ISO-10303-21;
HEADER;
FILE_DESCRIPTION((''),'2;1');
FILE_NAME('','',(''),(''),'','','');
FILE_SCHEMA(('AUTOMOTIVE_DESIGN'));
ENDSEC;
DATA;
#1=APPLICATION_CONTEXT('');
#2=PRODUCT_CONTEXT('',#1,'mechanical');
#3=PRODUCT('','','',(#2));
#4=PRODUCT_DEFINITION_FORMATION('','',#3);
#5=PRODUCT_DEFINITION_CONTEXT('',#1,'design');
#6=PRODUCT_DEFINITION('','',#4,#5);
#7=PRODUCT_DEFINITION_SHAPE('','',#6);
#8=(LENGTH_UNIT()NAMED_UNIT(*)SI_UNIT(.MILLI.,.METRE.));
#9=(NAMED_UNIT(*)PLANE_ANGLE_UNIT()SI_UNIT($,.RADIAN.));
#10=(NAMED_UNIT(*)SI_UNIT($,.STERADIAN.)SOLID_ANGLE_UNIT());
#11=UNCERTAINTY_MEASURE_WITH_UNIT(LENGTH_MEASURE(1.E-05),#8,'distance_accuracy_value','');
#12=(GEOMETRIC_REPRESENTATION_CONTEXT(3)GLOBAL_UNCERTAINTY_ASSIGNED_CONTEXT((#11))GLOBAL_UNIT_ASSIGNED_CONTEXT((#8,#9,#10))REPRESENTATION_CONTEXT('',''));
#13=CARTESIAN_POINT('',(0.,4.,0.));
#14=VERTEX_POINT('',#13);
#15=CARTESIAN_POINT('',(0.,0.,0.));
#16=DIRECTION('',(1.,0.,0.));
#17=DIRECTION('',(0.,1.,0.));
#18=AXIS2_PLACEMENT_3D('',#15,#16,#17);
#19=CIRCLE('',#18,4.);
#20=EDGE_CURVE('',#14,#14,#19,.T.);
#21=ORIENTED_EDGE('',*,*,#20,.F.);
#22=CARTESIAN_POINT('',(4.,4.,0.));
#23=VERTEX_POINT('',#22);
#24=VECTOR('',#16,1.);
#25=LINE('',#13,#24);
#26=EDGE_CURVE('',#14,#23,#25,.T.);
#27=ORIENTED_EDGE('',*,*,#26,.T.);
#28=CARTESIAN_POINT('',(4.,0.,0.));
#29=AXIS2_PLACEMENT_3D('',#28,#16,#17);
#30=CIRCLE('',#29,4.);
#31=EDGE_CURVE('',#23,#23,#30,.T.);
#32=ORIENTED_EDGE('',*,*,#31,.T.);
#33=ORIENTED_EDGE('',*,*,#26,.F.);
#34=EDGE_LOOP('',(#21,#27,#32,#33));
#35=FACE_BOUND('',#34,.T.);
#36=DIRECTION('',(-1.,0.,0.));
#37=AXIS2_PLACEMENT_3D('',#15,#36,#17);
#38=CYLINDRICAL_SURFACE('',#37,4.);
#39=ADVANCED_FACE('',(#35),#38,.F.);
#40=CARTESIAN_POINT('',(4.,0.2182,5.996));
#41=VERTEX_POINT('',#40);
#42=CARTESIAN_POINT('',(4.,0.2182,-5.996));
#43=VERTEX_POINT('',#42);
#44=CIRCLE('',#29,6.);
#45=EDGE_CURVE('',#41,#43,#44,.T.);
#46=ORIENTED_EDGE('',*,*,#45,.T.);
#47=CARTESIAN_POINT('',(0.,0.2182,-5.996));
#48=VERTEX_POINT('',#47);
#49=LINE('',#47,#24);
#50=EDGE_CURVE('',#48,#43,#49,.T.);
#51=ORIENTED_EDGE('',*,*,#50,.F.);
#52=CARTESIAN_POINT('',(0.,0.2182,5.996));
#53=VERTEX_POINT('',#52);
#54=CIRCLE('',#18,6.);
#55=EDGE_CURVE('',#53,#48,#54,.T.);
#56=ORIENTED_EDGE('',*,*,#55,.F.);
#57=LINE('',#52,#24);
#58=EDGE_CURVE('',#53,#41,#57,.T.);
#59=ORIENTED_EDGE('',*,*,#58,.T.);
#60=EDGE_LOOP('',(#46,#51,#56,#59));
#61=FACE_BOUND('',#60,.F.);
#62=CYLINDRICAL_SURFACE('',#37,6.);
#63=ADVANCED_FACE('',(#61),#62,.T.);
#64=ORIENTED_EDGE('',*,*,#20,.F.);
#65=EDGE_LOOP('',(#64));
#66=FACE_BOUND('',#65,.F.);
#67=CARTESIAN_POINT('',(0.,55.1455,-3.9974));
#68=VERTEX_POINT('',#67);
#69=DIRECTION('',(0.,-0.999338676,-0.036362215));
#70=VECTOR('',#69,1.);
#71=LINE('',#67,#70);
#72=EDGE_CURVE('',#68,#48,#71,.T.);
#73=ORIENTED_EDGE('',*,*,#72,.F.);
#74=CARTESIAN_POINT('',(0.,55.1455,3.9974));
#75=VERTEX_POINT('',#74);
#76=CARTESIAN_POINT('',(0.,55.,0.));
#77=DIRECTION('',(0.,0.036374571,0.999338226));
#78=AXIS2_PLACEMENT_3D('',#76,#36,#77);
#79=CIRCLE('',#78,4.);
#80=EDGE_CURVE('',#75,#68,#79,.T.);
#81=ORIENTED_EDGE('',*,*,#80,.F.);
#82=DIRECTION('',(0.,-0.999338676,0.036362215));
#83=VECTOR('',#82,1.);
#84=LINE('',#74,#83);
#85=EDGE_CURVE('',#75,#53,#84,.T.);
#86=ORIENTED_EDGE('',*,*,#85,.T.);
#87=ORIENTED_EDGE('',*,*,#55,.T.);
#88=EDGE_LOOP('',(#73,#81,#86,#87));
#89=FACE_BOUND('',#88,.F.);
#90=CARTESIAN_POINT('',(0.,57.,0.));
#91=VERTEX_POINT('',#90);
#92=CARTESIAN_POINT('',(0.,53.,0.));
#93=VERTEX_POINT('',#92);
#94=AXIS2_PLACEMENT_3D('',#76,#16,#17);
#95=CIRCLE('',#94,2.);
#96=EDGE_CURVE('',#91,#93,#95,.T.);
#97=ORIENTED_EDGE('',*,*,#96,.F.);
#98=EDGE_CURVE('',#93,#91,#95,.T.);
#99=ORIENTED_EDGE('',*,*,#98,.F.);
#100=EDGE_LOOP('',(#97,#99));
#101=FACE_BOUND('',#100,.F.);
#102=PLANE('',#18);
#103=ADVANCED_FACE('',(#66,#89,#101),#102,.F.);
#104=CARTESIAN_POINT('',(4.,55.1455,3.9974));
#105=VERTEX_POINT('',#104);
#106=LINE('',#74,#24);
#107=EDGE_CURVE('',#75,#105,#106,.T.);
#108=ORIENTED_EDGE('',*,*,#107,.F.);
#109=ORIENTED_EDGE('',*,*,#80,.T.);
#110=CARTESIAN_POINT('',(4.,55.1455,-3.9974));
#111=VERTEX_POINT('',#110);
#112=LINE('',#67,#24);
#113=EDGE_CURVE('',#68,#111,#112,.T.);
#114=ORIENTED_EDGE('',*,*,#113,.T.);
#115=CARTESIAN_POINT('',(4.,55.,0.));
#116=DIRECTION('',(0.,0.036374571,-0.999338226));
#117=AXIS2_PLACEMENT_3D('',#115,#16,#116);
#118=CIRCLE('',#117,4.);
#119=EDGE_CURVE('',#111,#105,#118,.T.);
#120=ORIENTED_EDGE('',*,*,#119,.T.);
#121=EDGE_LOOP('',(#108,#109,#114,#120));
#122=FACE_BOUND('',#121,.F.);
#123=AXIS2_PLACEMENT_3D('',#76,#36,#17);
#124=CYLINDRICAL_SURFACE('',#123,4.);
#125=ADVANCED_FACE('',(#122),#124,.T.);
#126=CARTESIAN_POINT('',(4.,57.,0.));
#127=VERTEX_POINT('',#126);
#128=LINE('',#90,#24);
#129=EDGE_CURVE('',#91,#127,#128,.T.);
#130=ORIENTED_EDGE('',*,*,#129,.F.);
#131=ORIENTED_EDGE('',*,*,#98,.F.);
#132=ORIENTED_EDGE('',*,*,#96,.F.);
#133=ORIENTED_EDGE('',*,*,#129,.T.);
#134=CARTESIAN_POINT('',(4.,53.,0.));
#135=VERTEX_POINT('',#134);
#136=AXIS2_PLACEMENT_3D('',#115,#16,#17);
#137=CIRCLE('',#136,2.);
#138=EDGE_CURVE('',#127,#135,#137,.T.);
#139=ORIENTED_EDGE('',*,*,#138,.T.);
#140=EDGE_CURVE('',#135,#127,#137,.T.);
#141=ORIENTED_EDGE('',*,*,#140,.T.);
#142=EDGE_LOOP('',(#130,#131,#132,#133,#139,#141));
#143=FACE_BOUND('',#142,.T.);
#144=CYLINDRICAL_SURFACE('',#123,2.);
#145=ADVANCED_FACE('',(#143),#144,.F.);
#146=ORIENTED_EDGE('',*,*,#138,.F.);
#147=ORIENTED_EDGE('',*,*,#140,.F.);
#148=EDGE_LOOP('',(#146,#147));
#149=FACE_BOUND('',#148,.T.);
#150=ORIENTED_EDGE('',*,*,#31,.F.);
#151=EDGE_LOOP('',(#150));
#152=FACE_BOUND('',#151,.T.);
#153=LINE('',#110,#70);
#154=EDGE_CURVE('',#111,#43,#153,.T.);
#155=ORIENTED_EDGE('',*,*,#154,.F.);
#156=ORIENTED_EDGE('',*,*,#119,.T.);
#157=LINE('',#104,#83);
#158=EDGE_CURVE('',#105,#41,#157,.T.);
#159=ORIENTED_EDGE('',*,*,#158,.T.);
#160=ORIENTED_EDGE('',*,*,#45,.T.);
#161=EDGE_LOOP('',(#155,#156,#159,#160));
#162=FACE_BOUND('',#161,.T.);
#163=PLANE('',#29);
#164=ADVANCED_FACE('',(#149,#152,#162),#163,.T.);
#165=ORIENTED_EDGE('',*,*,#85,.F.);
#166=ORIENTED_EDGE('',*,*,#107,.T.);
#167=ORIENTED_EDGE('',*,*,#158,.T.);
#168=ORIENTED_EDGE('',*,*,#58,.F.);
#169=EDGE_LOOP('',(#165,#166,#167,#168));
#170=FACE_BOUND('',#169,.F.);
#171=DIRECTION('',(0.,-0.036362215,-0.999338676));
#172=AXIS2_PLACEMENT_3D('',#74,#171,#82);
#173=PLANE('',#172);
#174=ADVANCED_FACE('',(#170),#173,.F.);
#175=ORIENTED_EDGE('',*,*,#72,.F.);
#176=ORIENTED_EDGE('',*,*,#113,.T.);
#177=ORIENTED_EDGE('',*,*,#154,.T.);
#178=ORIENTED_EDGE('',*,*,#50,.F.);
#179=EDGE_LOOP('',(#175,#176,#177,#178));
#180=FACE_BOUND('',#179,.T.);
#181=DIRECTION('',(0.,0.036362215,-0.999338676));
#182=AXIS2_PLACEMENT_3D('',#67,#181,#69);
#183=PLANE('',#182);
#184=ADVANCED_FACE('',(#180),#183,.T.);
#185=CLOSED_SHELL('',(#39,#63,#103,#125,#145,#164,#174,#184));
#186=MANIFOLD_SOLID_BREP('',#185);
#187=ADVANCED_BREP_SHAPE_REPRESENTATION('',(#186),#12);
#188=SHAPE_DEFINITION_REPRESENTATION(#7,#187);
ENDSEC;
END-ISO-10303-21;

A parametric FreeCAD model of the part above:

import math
import FreeCAD as App
import Part
import Sketcher
from FreeCAD import Vector
Q = App.Units.Quantity

doc = App.newDocument("Part")
body = doc.addObject("PartDesign::Body", "Body")

# Sketch on YZ plane
sketch1 = body.newObject("Sketcher::SketchObject", "Sketch")
sketch1.AttachmentSupport = (doc.getObject("YZ_Plane"), [""])
sketch1.MapMode = "FlatFace"
sketch1.addGeometry(Part.ArcOfCircle(Part.Circle(Vector(0, 0, 0), Vector(0, 0, 1), 6), math.radians(88), math.radians(272)), False)
sketch1.addGeometry(Part.LineSegment(Vector(0.2, -6, 0), Vector(55.1, -4, 0)), False)
sketch1.addGeometry(Part.ArcOfCircle(Part.Circle(Vector(55, 0, 0), Vector(0, 0, 1), 4), math.radians(-88), math.radians(88)), False)
sketch1.addGeometry(Part.LineSegment(Vector(55.1, 4, 0), Vector(0.2, 6, 0)), False)
sketch1.addGeometry(Part.Circle(Vector(0, 0, 0), Vector(0, 0, 1), 4), False)
sketch1.addGeometry(Part.Circle(Vector(55, 0, 0), Vector(0, 0, 1), 2), False)
sketch1.addConstraint(Sketcher.Constraint("Tangent", 0, 2, 1, 1))
sketch1.addConstraint(Sketcher.Constraint("Tangent", 1, 2, 2, 1))
sketch1.addConstraint(Sketcher.Constraint("Tangent", 2, 2, 3, 1))
sketch1.addConstraint(Sketcher.Constraint("Tangent", 3, 2, 0, 1))
sketch1.addConstraint(Sketcher.Constraint("Coincident", 0, 3, -1, 1))
sketch1.addConstraint(Sketcher.Constraint("Coincident", 4, 3, -1, 1))
sketch1.addConstraint(Sketcher.Constraint("Coincident", 5, 3, 2, 3))
sketch1.addConstraint(Sketcher.Constraint("Equal", 2, 4))
sketch1.addConstraint(Sketcher.Constraint("PointOnObject", 2, 3, -1))
sketch1.addConstraint(Sketcher.Constraint("Diameter", 4, Q("8 mm")))
sketch1.addConstraint(Sketcher.Constraint("Diameter", 5, Q("4 mm")))
sketch1.addConstraint(Sketcher.Constraint("Radius", 0, Q("6 mm")))
sketch1.addConstraint(Sketcher.Constraint("DistanceX", -1, 1, 2, 3, Q("55 mm")))
pad1 = body.newObject("PartDesign::Pad", "Pad")
pad1.Profile = sketch1
pad1.Length = 4

doc.recompute()
